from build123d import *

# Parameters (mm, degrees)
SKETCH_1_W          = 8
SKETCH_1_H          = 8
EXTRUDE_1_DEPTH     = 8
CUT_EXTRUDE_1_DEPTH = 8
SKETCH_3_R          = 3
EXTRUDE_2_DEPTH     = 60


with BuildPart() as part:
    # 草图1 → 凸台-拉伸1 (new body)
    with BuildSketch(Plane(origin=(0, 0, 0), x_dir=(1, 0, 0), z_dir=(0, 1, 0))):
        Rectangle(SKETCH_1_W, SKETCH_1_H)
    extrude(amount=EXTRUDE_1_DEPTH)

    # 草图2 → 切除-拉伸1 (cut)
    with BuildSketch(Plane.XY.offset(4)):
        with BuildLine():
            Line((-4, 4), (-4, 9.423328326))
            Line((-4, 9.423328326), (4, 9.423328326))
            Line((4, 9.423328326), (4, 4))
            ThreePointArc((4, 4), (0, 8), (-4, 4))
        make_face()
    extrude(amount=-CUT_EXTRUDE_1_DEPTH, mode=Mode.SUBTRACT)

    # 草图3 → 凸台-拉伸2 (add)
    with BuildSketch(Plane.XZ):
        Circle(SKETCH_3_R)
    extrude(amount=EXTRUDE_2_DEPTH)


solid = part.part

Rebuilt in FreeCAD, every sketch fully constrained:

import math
import FreeCAD as App
import Part
import Sketcher
from FreeCAD import Vector

doc = App.newDocument("Part")
body = doc.addObject("PartDesign::Body", "Body")

sketch1 = body.newObject("Sketcher::SketchObject", "Sketch")
sketch1.AttachmentSupport = (doc.getObject("XZ_Plane"), [""])
sketch1.MapMode = "FlatFace"
sketch1.addGeometry([
    Part.LineSegment(Vector(-4, -4, 0), Vector(-4, 4, 0)),
    Part.LineSegment(Vector(-4, 4, 0), Vector(4, 4, 0)),
    Part.LineSegment(Vector(4, 4, 0), Vector(4, -4, 0)),
    Part.LineSegment(Vector(4, -4, 0), Vector(-4, -4, 0)),
], False)
sketch1.addConstraint([
    Sketcher.Constraint("Coincident", 0, 2, 1, 1),
    Sketcher.Constraint("Coincident", 1, 2, 2, 1),
    Sketcher.Constraint("Coincident", 2, 2, 3, 1),
    Sketcher.Constraint("Coincident", 3, 2, 0, 1),
    Sketcher.Constraint("Vertical", 0),
    Sketcher.Constraint("Horizontal", 1),
    Sketcher.Constraint("Vertical", 2),
    Sketcher.Constraint("Horizontal", 3),
    Sketcher.Constraint("Symmetric", 0, 2, 2, 2, -1, 1),
    Sketcher.Constraint("Equal", 3, 0),
    Sketcher.Constraint("DistanceX", 1, 1, 1, 2, 8.0),
])
pad1 = body.newObject("PartDesign::Pad", "Pad")
pad1.Profile = sketch1
pad1.Length = 8
pad1.Reversed = True

sketch2 = body.newObject("Sketcher::SketchObject", "Sketch001")
sketch2.AttachmentSupport = (doc.getObject("XY_Plane"), [""])
sketch2.MapMode = "FlatFace"
sketch2.AttachmentOffset = App.Placement(Vector(0, 0, 4), App.Rotation())
sketch2.addGeometry([
    Part.LineSegment(Vector(-4, 9.4, 0), Vector(-4, 4, 0)),
    Part.ArcOfCircle(Part.Circle(Vector(0, 4, 0), Vector(0, 0, 1), 4), math.radians(0), math.radians(180)),
    Part.LineSegment(Vector(4, 4, 0), Vector(4, 9.4, 0)),
    Part.LineSegment(Vector(4, 9.4, 0), Vector(-4, 9.4, 0)),
], False)
sketch2.addConstraint([
    Sketcher.Constraint("Tangent", 0, 2, 1, 2),
    Sketcher.Constraint("Tangent", 1, 1, 2, 1),
    Sketcher.Constraint("Coincident", 2, 2, 3, 1),
    Sketcher.Constraint("Coincident", 3, 2, 0, 1),
    Sketcher.Constraint("Vertical", 0),
    Sketcher.Constraint("Vertical", 2),
    Sketcher.Constraint("Horizontal", 3),
    Sketcher.Constraint("PointOnObject", 1, 3, -2),
    Sketcher.Constraint("Radius", 1, 4.0),
    Sketcher.Constraint("DistanceY", -1, 1, 1, 3, 4.0),
    Sketcher.Constraint("DistanceY", 0, 2, 0, 1, 5.423328),
])
pocket1 = body.newObject("PartDesign::Pocket", "Pocket")
pocket1.Profile = sketch2
pocket1.Length = 8

sketch3 = body.newObject("Sketcher::SketchObject", "Sketch002")
sketch3.AttachmentSupport = (doc.getObject("XZ_Plane"), [""])
sketch3.MapMode = "FlatFace"
sketch3.addGeometry(Part.Circle(Vector(0, 0, 0), Vector(0, 0, 1), 3), False)
sketch3.addConstraint([
    Sketcher.Constraint("Coincident", 0, 3, -1, 1),
    Sketcher.Constraint("Diameter", 0, 6.0),
])
pad2 = body.newObject("PartDesign::Pad", "Pad001")
pad2.Profile = sketch3
pad2.Length = 60

doc.recompute()
